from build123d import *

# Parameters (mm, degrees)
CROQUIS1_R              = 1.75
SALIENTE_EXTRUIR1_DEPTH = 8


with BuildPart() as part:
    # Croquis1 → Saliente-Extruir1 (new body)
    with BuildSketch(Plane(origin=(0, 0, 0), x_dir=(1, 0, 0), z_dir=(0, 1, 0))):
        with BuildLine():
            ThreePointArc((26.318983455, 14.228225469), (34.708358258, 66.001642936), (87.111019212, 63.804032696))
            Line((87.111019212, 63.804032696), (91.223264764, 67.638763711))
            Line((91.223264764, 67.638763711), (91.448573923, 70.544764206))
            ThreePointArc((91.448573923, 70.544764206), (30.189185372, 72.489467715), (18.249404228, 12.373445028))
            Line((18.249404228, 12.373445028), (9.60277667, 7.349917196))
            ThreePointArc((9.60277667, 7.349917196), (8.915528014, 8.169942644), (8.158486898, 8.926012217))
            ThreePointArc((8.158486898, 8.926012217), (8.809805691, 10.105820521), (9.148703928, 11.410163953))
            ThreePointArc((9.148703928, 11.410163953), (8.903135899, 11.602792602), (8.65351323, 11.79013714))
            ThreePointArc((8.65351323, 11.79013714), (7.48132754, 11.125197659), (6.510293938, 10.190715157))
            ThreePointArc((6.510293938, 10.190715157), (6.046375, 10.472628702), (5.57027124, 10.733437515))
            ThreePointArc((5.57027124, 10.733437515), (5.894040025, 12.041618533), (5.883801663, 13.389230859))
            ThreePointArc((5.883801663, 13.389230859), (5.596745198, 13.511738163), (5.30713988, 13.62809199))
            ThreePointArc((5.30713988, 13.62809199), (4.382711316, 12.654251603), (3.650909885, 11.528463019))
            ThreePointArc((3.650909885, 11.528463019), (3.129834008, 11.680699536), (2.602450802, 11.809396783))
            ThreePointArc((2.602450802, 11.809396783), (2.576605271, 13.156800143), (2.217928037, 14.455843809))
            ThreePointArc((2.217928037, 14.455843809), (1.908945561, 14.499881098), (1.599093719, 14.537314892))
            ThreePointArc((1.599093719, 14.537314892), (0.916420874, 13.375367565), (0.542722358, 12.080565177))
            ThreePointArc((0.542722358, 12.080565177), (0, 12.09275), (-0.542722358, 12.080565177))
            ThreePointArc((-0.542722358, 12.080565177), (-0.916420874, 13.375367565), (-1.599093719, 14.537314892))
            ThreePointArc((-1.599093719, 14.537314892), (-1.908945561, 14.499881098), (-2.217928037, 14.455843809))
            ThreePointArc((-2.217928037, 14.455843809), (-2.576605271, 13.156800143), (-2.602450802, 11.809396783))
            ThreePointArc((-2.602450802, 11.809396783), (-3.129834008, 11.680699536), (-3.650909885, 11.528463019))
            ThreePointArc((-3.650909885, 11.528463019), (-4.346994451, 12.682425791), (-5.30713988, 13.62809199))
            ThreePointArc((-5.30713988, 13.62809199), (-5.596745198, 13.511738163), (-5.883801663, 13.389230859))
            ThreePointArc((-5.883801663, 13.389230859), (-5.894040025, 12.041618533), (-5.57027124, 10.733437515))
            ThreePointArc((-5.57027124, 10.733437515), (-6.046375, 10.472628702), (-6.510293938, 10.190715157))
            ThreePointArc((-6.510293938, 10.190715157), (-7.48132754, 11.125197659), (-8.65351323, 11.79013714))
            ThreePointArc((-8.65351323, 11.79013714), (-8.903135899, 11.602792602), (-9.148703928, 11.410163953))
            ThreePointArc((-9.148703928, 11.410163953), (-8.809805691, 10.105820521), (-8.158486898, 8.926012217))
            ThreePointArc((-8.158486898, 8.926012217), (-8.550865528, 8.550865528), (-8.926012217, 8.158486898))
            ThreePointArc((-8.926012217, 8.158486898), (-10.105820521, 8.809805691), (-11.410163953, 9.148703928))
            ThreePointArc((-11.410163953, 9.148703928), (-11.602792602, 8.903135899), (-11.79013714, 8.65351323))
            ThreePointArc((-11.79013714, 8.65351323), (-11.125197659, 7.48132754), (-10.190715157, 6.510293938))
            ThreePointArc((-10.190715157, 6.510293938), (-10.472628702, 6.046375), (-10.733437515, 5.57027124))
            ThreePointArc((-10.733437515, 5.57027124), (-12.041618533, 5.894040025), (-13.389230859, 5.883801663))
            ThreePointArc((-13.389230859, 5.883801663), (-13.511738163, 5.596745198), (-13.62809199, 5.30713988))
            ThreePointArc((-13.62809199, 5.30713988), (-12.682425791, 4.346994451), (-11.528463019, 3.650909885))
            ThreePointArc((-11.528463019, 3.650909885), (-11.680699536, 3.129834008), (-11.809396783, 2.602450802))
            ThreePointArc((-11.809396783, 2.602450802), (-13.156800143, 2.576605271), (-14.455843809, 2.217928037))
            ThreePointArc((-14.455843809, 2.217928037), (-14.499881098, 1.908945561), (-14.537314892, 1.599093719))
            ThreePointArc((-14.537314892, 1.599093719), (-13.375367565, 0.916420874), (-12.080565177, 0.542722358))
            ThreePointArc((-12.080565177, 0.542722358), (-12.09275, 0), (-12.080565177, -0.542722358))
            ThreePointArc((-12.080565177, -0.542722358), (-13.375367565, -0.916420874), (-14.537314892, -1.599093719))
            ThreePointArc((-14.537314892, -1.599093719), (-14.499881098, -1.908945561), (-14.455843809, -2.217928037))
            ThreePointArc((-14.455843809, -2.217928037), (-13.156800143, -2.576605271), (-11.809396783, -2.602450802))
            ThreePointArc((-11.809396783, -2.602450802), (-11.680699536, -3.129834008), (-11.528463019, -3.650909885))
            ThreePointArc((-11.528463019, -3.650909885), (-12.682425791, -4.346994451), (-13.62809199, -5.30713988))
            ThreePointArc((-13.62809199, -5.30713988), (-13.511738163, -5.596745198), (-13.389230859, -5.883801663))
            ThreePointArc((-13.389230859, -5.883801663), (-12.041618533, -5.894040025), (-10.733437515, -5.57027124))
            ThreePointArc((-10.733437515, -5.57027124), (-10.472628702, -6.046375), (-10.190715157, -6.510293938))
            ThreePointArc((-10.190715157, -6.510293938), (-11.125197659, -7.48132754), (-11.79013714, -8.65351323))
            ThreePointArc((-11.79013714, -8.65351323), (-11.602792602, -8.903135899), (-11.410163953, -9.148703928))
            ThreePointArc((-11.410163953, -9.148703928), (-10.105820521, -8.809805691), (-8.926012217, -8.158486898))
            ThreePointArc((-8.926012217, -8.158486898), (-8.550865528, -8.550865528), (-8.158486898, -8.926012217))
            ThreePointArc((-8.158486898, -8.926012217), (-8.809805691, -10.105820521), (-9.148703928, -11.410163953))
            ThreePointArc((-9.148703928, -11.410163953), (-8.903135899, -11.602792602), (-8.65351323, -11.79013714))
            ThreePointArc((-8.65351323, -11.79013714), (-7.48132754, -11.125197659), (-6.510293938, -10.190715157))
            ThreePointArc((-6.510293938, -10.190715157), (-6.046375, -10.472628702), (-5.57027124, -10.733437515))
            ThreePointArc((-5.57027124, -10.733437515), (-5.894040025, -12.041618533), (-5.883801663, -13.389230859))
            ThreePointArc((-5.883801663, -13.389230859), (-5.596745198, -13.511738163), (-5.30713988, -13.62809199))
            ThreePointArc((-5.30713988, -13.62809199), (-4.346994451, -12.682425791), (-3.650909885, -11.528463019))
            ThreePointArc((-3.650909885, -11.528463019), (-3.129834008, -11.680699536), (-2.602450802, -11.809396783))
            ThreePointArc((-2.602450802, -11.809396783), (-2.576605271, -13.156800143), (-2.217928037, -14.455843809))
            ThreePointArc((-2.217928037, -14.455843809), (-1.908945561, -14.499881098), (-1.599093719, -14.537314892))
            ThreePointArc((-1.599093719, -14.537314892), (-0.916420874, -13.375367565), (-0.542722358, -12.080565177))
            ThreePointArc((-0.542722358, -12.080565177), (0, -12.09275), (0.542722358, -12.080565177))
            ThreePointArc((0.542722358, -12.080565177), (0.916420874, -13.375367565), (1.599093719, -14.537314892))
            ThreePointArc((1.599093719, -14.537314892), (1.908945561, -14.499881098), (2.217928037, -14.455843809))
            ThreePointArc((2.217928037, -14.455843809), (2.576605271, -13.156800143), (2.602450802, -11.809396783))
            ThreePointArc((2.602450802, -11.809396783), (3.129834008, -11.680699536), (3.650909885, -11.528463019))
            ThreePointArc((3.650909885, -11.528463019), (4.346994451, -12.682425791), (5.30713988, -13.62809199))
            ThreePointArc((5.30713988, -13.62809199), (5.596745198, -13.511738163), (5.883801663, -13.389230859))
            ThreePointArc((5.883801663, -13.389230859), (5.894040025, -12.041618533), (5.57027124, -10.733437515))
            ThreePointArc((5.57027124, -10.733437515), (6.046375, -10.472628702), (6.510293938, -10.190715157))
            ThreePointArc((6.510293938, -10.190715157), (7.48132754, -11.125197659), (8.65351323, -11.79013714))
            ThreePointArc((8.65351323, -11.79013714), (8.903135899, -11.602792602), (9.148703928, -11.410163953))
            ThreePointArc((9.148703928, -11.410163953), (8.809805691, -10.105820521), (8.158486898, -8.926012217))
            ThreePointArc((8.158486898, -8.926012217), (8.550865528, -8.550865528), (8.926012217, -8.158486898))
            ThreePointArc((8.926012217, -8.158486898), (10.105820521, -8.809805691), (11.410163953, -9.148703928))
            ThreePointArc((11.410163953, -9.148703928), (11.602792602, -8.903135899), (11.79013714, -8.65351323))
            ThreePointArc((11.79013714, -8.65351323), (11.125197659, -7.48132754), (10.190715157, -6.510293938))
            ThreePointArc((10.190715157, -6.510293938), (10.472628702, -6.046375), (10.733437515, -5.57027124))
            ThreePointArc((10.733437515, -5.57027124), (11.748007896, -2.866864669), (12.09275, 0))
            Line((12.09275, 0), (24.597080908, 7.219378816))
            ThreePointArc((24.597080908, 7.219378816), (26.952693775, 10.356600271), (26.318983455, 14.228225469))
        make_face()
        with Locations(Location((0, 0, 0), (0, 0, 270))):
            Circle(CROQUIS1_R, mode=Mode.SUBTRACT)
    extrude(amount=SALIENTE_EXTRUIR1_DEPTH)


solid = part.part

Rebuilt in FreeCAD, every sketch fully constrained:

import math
import FreeCAD as App
import Part
import Sketcher

V = App.Vector
Q = App.Units.Quantity

doc = App.newDocument("Part")
params = doc.addObject("Spreadsheet::Sheet", "Params")
for row, (alias, value) in enumerate([
    ("sketch1_radius", "5 mm"),
    ("sketch1_diameter", "3.5 mm"),
    ("sketch1_radius2", "39.5 mm"),
    ("sketch1_radius3", "5.4 mm"),
    ("sketch1_length", "10 mm"),
    ("pad1_length", "8 mm"),
], start=1):
    params.set(f"A{row}", alias)
    params.set(f"B{row}", "=" + value)
    params.setAlias(f"B{row}", alias)

body = doc.addObject("PartDesign::Body", "Body")

sketch1 = body.newObject("Sketcher::SketchObject", "Sketch")
sketch1.AttachmentSupport = (doc.getObject("XZ_Plane"), [""])
sketch1.MapMode = "FlatFace"
sketch1.addGeometry([
    Part.ArcOfCircle(Part.Circle(V(59.7, -35.4, 0), V(0, 0, 1), 39.5), math.radians(148), math.radians(314)),
    Part.LineSegment(V(87.1, -63.8, 0), V(91.2, -67.6, 0)),
    Part.LineSegment(V(91.2, -67.6, 0), V(91.4, -70.5, 0)),
    Part.ArcOfCircle(Part.Circle(V(59.7, -35.4, 0), V(0, 0, 1), 47.4), math.radians(151), math.radians(312)),
    Part.LineSegment(V(18.2, -12.4, 0), V(9.6, -7.3, 0)),
    Part.ArcOfCircle(Part.Circle(V(0, 0, 0), V(0, 0, 1), 12.1), math.radians(-47.57), math.radians(-37.43)),
    Part.ArcOfCircle(Part.Circle(V(3.8, -12.1, 0), V(0, 0, 1), 5.4), math.radians(7), math.radians(36)),
    Part.ArcOfCircle(Part.Circle(V(0, 0, 0), V(0, 0, 1), 14.6), math.radians(-53.72), math.radians(-51.28)),
    Part.ArcOfCircle(Part.Circle(V(10.7, -6.8, 0), V(0, 0, 1), 5.4), math.radians(-141), math.radians(-112)),
    Part.ArcOfCircle(Part.Circle(V(0, 0, 0), V(0, 0, 1), 12.1), math.radians(-62.57), math.radians(-57.43)),
    Part.ArcOfCircle(Part.Circle(V(0.5, -12.7, 0), V(0, 0, 1), 5.4), math.radians(-8), math.radians(21)),
    Part.ArcOfCircle(Part.Circle(V(0, 0, 0), V(0, 0, 1), 14.6), math.radians(-68.72), math.radians(-66.28)),
    Part.ArcOfCircle(Part.Circle(V(10.2, -8.1, 0), V(0, 0, 1), 7.3), math.radians(-152), math.radians(-131)),
    Part.ArcOfCircle(Part.Circle(V(0, 0, 0), V(0, 0, 1), 12.1), math.radians(-77.57), math.radians(-72.43)),
    Part.ArcOfCircle(Part.Circle(V(-2.8, -12.4, 0), V(0, 0, 1), 5.4), math.radians(-23), math.radians(6)),
    Part.ArcOfCircle(Part.Circle(V(0, 0, 0), V(0, 0, 1), 14.6), math.radians(-83.72), math.radians(-81.28)),
    Part.ArcOfCircle(Part.Circle(V(5.9, -11.2, 0), V(0, 0, 1), 5.4), math.radians(-171), math.radians(-142)),
    Part.ArcOfCircle(Part.Circle(V(0, 0, 0), V(0, 0, 1), 12.1), math.radians(-92.57), math.radians(-87.43)),
    Part.ArcOfCircle(Part.Circle(V(-5.9, -11.2, 0), V(0, 0, 1), 5.4), math.radians(-38), math.radians(-9)),
    Part.ArcOfCircle(Part.Circle(V(0, 0, 0), V(0, 0, 1), 14.6), math.radians(-98.72), math.radians(-96.28)),
    Part.ArcOfCircle(Part.Circle(V(2.8, -12.4, 0), V(0, 0, 1), 5.4), math.radians(174), math.radians(203)),
    Part.ArcOfCircle(Part.Circle(V(0, 0, 0), V(0, 0, 1), 12.1), math.radians(-107.57), math.radians(-102.43)),
    Part.ArcOfCircle(Part.Circle(V(-8.6, -9.3, 0), V(0, 0, 1), 5.4), math.radians(-53), math.radians(-24)),
    Part.ArcOfCircle(Part.Circle(V(0, 0, 0), V(0, 0, 1), 14.6), math.radians(-113.72), math.radians(-111.28)),
    Part.ArcOfCircle(Part.Circle(V(-0.5, -12.7, 0), V(0, 0, 1), 5.4), math.radians(159), math.radians(188)),
    Part.ArcOfCircle(Part.Circle(V(0, 0, 0), V(0, 0, 1), 12.1), math.radians(-122.57), math.radians(-117.43)),
    Part.ArcOfCircle(Part.Circle(V(-10.7, -6.8, 0), V(0, 0, 1), 5.4), math.radians(-68), math.radians(-39)),
    Part.ArcOfCircle(Part.Circle(V(0, 0, 0), V(0, 0, 1), 14.6), math.radians(-128.72), math.radians(-126.28)),
    Part.ArcOfCircle(Part.Circle(V(-3.8, -12.1, 0), V(0, 0, 1), 5.4), math.radians(144), math.radians(173)),
    Part.ArcOfCircle(Part.Circle(V(0, 0, 0), V(0, 0, 1), 12.1), math.radians(-137.57), math.radians(-132.43)),
    Part.ArcOfCircle(Part.Circle(V(-12.1, -3.8, 0), V(0, 0, 1), 5.4), math.radians(-83), math.radians(-54)),
    Part.ArcOfCircle(Part.Circle(V(0, 0, 0), V(0, 0, 1), 14.6), math.radians(-143.72), math.radians(-141.28)),
    Part.ArcOfCircle(Part.Circle(V(-6.8, -10.7, 0), V(0, 0, 1), 5.4), math.radians(129), math.radians(158)),
    Part.ArcOfCircle(Part.Circle(V(0, 0, 0), V(0, 0, 1), 12.1), math.radians(-152.57), math.radians(-147.43)),
    Part.ArcOfCircle(Part.Circle(V(-12.7, -0.5, 0), V(0, 0, 1), 5.4), math.radians(-98), math.radians(-69)),
    Part.ArcOfCircle(Part.Circle(V(0, 0, 0), V(0, 0, 1), 14.6), math.radians(-158.72), math.radians(-156.28)),
    Part.ArcOfCircle(Part.Circle(V(-9.3, -8.6, 0), V(0, 0, 1), 5.4), math.radians(114), math.radians(143)),
    Part.ArcOfCircle(Part.Circle(V(0, 0, 0), V(0, 0, 1), 12.1), math.radians(-167.57), math.radians(-162.43)),
    Part.ArcOfCircle(Part.Circle(V(-12.4, 2.8, 0), V(0, 0, 1), 5.4), math.radians(-113), math.radians(-84)),
    Part.ArcOfCircle(Part.Circle(V(0, 0, 0), V(0, 0, 1), 14.6), math.radians(-173.72), math.radians(-171.28)),
    Part.ArcOfCircle(Part.Circle(V(-11.2, -5.9, 0), V(0, 0, 1), 5.4), math.radians(99), math.radians(128)),
    Part.ArcOfCircle(Part.Circle(V(0, 0, 0), V(0, 0, 1), 12.1), math.radians(177.43), math.radians(182.57)),
    Part.ArcOfCircle(Part.Circle(V(-11.2, 5.9, 0), V(0, 0, 1), 5.4), math.radians(-128), math.radians(-99)),
    Part.ArcOfCircle(Part.Circle(V(0, 0, 0), V(0, 0, 1), 14.6), math.radians(171.28), math.radians(173.72)),
    Part.ArcOfCircle(Part.Circle(V(-12.4, -2.8, 0), V(0, 0, 1), 5.4), math.radians(84), math.radians(113)),
    Part.ArcOfCircle(Part.Circle(V(0, 0, 0), V(0, 0, 1), 12.1), math.radians(162.43), math.radians(167.57)),
    Part.ArcOfCircle(Part.Circle(V(-9.3, 8.6, 0), V(0, 0, 1), 5.4), math.radians(-143), math.radians(-114)),
    Part.ArcOfCircle(Part.Circle(V(0, 0, 0), V(0, 0, 1), 14.6), math.radians(156.28), math.radians(158.72)),
    Part.ArcOfCircle(Part.Circle(V(-12.7, 0.5, 0), V(0, 0, 1), 5.4), math.radians(69), math.radians(98)),
    Part.ArcOfCircle(Part.Circle(V(0, 0, 0), V(0, 0, 1), 12.1), math.radians(147.43), math.radians(152.57)),
    Part.ArcOfCircle(Part.Circle(V(-6.8, 10.7, 0), V(0, 0, 1), 5.4), math.radians(-158), math.radians(-129)),
    Part.ArcOfCircle(Part.Circle(V(0, 0, 0), V(0, 0, 1), 14.6), math.radians(141.28), math.radians(143.72)),
    Part.ArcOfCircle(Part.Circle(V(-12.1, 3.8, 0), V(0, 0, 1), 5.4), math.radians(54), math.radians(83)),
    Part.ArcOfCircle(Part.Circle(V(0, 0, 0), V(0, 0, 1), 12.1), math.radians(132.43), math.radians(137.57)),
    Part.ArcOfCircle(Part.Circle(V(-3.8, 12.1, 0), V(0, 0, 1), 5.4), math.radians(-173), math.radians(-144)),
    Part.ArcOfCircle(Part.Circle(V(0, 0, 0), V(0, 0, 1), 14.6), math.radians(126.28), math.radians(128.72)),
    Part.ArcOfCircle(Part.Circle(V(-10.7, 6.8, 0), V(0, 0, 1), 5.4), math.radians(39), math.radians(68)),
    Part.ArcOfCircle(Part.Circle(V(0, 0, 0), V(0, 0, 1), 12.1), math.radians(117.43), math.radians(122.57)),
    Part.ArcOfCircle(Part.Circle(V(-0.5, 12.7, 0), V(0, 0, 1), 5.4), math.radians(172), math.radians(201)),
    Part.ArcOfCircle(Part.Circle(V(0, 0, 0), V(0, 0, 1), 14.6), math.radians(111.28), math.radians(113.72)),
    Part.ArcOfCircle(Part.Circle(V(-8.6, 9.3, 0), V(0, 0, 1), 5.4), math.radians(24), math.radians(53)),
    Part.ArcOfCircle(Part.Circle(V(0, 0, 0), V(0, 0, 1), 12.1), math.radians(102.43), math.radians(107.57)),
    Part.ArcOfCircle(Part.Circle(V(2.8, 12.4, 0), V(0, 0, 1), 5.4), math.radians(157), math.radians(186)),
    Part.ArcOfCircle(Part.Circle(V(0, 0, 0), V(0, 0, 1), 14.6), math.radians(96.28), math.radians(98.72)),
    Part.ArcOfCircle(Part.Circle(V(-5.9, 11.2, 0), V(0, 0, 1), 5.4), math.radians(9), math.radians(38)),
    Part.ArcOfCircle(Part.Circle(V(0, 0, 0), V(0, 0, 1), 12.1), math.radians(87.43), math.radians(92.57)),
    Part.ArcOfCircle(Part.Circle(V(5.9, 11.2, 0), V(0, 0, 1), 5.4), math.radians(142), math.radians(171)),
    Part.ArcOfCircle(Part.Circle(V(0, 0, 0), V(0, 0, 1), 14.6), math.radians(81.28), math.radians(83.72)),
    Part.ArcOfCircle(Part.Circle(V(-2.8, 12.4, 0), V(0, 0, 1), 5.4), math.radians(-6), math.radians(23)),
    Part.ArcOfCircle(Part.Circle(V(0, 0, 0), V(0, 0, 1), 12.1), math.radians(72.43), math.radians(77.57)),
    Part.ArcOfCircle(Part.Circle(V(8.6, 9.3, 0), V(0, 0, 1), 5.4), math.radians(127), math.radians(156)),
    Part.ArcOfCircle(Part.Circle(V(0, 0, 0), V(0, 0, 1), 14.6), math.radians(66.28), math.radians(68.72)),
    Part.ArcOfCircle(Part.Circle(V(0.5, 12.7, 0), V(0, 0, 1), 5.4), math.radians(-21), math.radians(8)),
    Part.ArcOfCircle(Part.Circle(V(0, 0, 0), V(0, 0, 1), 12.1), math.radians(57.43), math.radians(62.57)),
    Part.ArcOfCircle(Part.Circle(V(10.7, 6.8, 0), V(0, 0, 1), 5.4), math.radians(112), math.radians(141)),
    Part.ArcOfCircle(Part.Circle(V(0, 0, 0), V(0, 0, 1), 14.6), math.radians(51.28), math.radians(53.72)),
    Part.ArcOfCircle(Part.Circle(V(3.8, 12.1, 0), V(0, 0, 1), 5.4), math.radians(-36), math.radians(-7)),
    Part.ArcOfCircle(Part.Circle(V(0, 0, 0), V(0, 0, 1), 12.1), math.radians(42.43), math.radians(47.57)),
    Part.ArcOfCircle(Part.Circle(V(12.1, 3.8, 0), V(0, 0, 1), 5.4), math.radians(97), math.radians(126)),
    Part.ArcOfCircle(Part.Circle(V(0, 0, 0), V(0, 0, 1), 14.6), math.radians(36.28), math.radians(38.72)),
    Part.ArcOfCircle(Part.Circle(V(6.8, 10.7, 0), V(0, 0, 1), 5.4), math.radians(-51), math.radians(-22)),
    Part.ArcOfCircle(Part.Circle(V(0, 0, 0), V(0, 0, 1), 12.1), math.radians(27.43), math.radians(32.57)),
    Part.ArcOfCircle(Part.Circle(V(0, 0, 0), V(0, 0, 1), 12.1), math.radians(0), math.radians(27)),
    Part.LineSegment(V(12.1, 0, 0), V(24.6, -7.2, 0)),
    Part.ArcOfCircle(Part.Circle(V(22.1, -11.5, 0), V(0, 0, 1), 5), math.radians(-32), math.radians(60)),
    Part.Circle(V(0, 0, 0), V(0, 0, 1), 1.8),
], False)
sketch1.addConstraint([
    Sketcher.Constraint("Coincident", 0, 2, 1, 1),
    Sketcher.Constraint("Coincident", 1, 2, 2, 1),
    Sketcher.Constraint("Coincident", 2, 2, 3, 2),
    Sketcher.Constraint("Coincident", 3, 1, 4, 1),
    Sketcher.Constraint("Coincident", 4, 2, 5, 2),
    Sketcher.Constraint("Coincident", 5, 1, 6, 2),
    Sketcher.Constraint("Coincident", 6, 1, 7, 2),
    Sketcher.Constraint("Coincident", 7, 1, 8, 2),
    Sketcher.Constraint("Coincident", 8, 1, 9, 2),
    Sketcher.Constraint("Coincident", 9, 1, 10, 2),
    Sketcher.Constraint("Coincident", 10, 1, 11, 2),
    Sketcher.Constraint("Coincident", 11, 1, 12, 2),
    Sketcher.Constraint("Coincident", 12, 1, 13, 2),
    Sketcher.Constraint("Coincident", 13, 1, 14, 2),
    Sketcher.Constraint("Coincident", 14, 1, 15, 2),
    Sketcher.Constraint("Coincident", 15, 1, 16, 2),
    Sketcher.Constraint("Coincident", 16, 1, 17, 2),
    Sketcher.Constraint("Coincident", 17, 1, 18, 2),
    Sketcher.Constraint("Coincident", 18, 1, 19, 2),
    Sketcher.Constraint("Coincident", 19, 1, 20, 2),
    Sketcher.Constraint("Coincident", 20, 1, 21, 2),
    Sketcher.Constraint("Coincident", 21, 1, 22, 2),
    Sketcher.Constraint("Coincident", 22, 1, 23, 2),
    Sketcher.Constraint("Coincident", 23, 1, 24, 2),
    Sketcher.Constraint("Coincident", 24, 1, 25, 2),
    Sketcher.Constraint("Coincident", 25, 1, 26, 2),
    Sketcher.Constraint("Coincident", 26, 1, 27, 2),
    Sketcher.Constraint("Coincident", 27, 1, 28, 2),
    Sketcher.Constraint("Coincident", 28, 1, 29, 2),
    Sketcher.Constraint("Coincident", 29, 1, 30, 2),
    Sketcher.Constraint("Coincident", 30, 1, 31, 2),
    Sketcher.Constraint("Coincident", 31, 1, 32, 2),
    Sketcher.Constraint("Coincident", 32, 1, 33, 2),
    Sketcher.Constraint("Coincident", 33, 1, 34, 2),
    Sketcher.Constraint("Coincident", 34, 1, 35, 2),
    Sketcher.Constraint("Coincident", 35, 1, 36, 2),
    Sketcher.Constraint("Coincident", 36, 1, 37, 2),
    Sketcher.Constraint("Coincident", 37, 1, 38, 2),
    Sketcher.Constraint("Coincident", 38, 1, 39, 2),
    Sketcher.Constraint("Coincident", 39, 1, 40, 2),
    Sketcher.Constraint("Coincident", 40, 1, 41, 2),
    Sketcher.Constraint("Coincident", 41, 1, 42, 2),
    Sketcher.Constraint("Coincident", 42, 1, 43, 2),
    Sketcher.Constraint("Coincident", 43, 1, 44, 2),
    Sketcher.Constraint("Coincident", 44, 1, 45, 2),
    Sketcher.Constraint("Coincident", 45, 1, 46, 2),
    Sketcher.Constraint("Coincident", 46, 1, 47, 2),
    Sketcher.Constraint("Coincident", 47, 1, 48, 2),
    Sketcher.Constraint("Coincident", 48, 1, 49, 2),
    Sketcher.Constraint("Coincident", 49, 1, 50, 2),
    Sketcher.Constraint("Coincident", 50, 1, 51, 2),
    Sketcher.Constraint("Coincident", 51, 1, 52, 2),
    Sketcher.Constraint("Coincident", 52, 1, 53, 2),
    Sketcher.Constraint("Coincident", 53, 1, 54, 2),
    Sketcher.Constraint("Coincident", 54, 1, 55, 2),
    Sketcher.Constraint("Coincident", 55, 1, 56, 2),
    Sketcher.Constraint("Coincident", 56, 1, 57, 2),
    Sketcher.Constraint("Coincident", 57, 1, 58, 2),
    Sketcher.Constraint("Coincident", 58, 1, 59, 2),
    Sketcher.Constraint("Coincident", 59, 1, 60, 2),
    Sketcher.Constraint("Coincident", 60, 1, 61, 2),
    Sketcher.Constraint("Coincident", 61, 1, 62, 2),
    Sketcher.Constraint("Coincident", 62, 1, 63, 2),
    Sketcher.Constraint("Coincident", 63, 1, 64, 2),
    Sketcher.Constraint("Coincident", 64, 1, 65, 2),
    Sketcher.Constraint("Coincident", 65, 1, 66, 2),
    Sketcher.Constraint("Coincident", 66, 1, 67, 2),
    Sketcher.Constraint("Coincident", 67, 1, 68, 2),
    Sketcher.Constraint("Coincident", 68, 1, 69, 2),
    Sketcher.Constraint("Coincident", 69, 1, 70, 2),
    Sketcher.Constraint("Coincident", 70, 1, 71, 2),
    Sketcher.Constraint("Coincident", 71, 1, 72, 2),
    Sketcher.Constraint("Coincident", 72, 1, 73, 2),
    Sketcher.Constraint("Coincident", 73, 1, 74, 2),
    Sketcher.Constraint("Coincident", 74, 1, 75, 2),
    Sketcher.Constraint("Coincident", 75, 1, 76, 2),
    Sketcher.Constraint("Coincident", 76, 1, 77, 2),
    Sketcher.Constraint("Coincident", 77, 1, 78, 2),
    Sketcher.Constraint("Coincident", 78, 1, 79, 2),
    Sketcher.Constraint("Coincident", 79, 1, 80, 2),
    Sketcher.Constraint("Coincident", 80, 1, 81, 2),
    Sketcher.Constraint("Tangent", 81, 1, 82, 2),
    Sketcher.Constraint("Coincident", 82, 1, 83, 1),
    Sketcher.Constraint("Tangent", 83, 2, 84, 2),
    Sketcher.Constraint("Tangent", 84, 1, 0, 1),
    Sketcher.Constraint("Coincident", 5, 3, -1, 1),
    Sketcher.Constraint("Coincident", 7, 3, -1, 1),
    Sketcher.Constraint("Coincident", 9, 3, -1, 1),
    Sketcher.Constraint("Coincident", 11, 3, -1, 1),
    Sketcher.Constraint("Coincident", 13, 3, -1, 1),
    Sketcher.Constraint("Coincident", 15, 3, -1, 1),
    Sketcher.Constraint("Coincident", 17, 3, -1, 1),
    Sketcher.Constraint("Coincident", 19, 3, -1, 1),
    Sketcher.Constraint("Coincident", 21, 3, -1, 1),
    Sketcher.Constraint("Coincident", 23, 3, -1, 1),
    Sketcher.Constraint("Coincident", 25, 3, -1, 1),
    Sketcher.Constraint("Coincident", 27, 3, -1, 1),
    Sketcher.Constraint("Coincident", 29, 3, -1, 1),
    Sketcher.Constraint("Coincident", 31, 3, -1, 1),
    Sketcher.Constraint("Coincident", 33, 3, -1, 1),
    Sketcher.Constraint("Coincident", 35, 3, -1, 1),
    Sketcher.Constraint("Coincident", 37, 3, -1, 1),
    Sketcher.Constraint("Coincident", 39, 3, -1, 1),
    Sketcher.Constraint("Coincident", 41, 3, -1, 1),
    Sketcher.Constraint("Coincident", 43, 3, -1, 1),
    Sketcher.Constraint("Coincident", 45, 3, -1, 1),
    Sketcher.Constraint("Coincident", 47, 3, -1, 1),
    Sketcher.Constraint("Coincident", 49, 3, -1, 1),
    Sketcher.Constraint("Coincident", 51, 3, -1, 1),
    Sketcher.Constraint("Coincident", 53, 3, -1, 1),
    Sketcher.Constraint("Coincident", 55, 3, -1, 1),
    Sketcher.Constraint("Coincident", 57, 3, -1, 1),
    Sketcher.Constraint("Coincident", 59, 3, -1, 1),
    Sketcher.Constraint("Coincident", 61, 3, -1, 1),
    Sketcher.Constraint("Coincident", 63, 3, -1, 1),
    Sketcher.Constraint("Coincident", 65, 3, -1, 1),
    Sketcher.Constraint("Coincident", 67, 3, -1, 1),
    Sketcher.Constraint("Coincident", 69, 3, -1, 1),
    Sketcher.Constraint("Coincident", 71, 3, -1, 1),
    Sketcher.Constraint("Coincident", 73, 3, -1, 1),
    Sketcher.Constraint("Coincident", 75, 3, -1, 1),
    Sketcher.Constraint("Coincident", 77, 3, -1, 1),
    Sketcher.Constraint("Coincident", 79, 3, -1, 1),
    Sketcher.Constraint("Coincident", 81, 3, -1, 1),
    Sketcher.Constraint("Coincident", 85, 3, -1, 1),
    Sketcher.Constraint("Coincident", 3, 3, 0, 3),
    Sketcher.Constraint("Equal", 6, 8),
    Sketcher.Constraint("Equal", 5, 9),
    Sketcher.Constraint("Equal", 8, 10),
    Sketcher.Constraint("Equal", 7, 11),
    Sketcher.Constraint("Equal", 9, 13),
    Sketcher.Constraint("Equal", 10, 14),
    Sketcher.Constraint("Equal", 7, 15),
    Sketcher.Constraint("Equal", 14, 16),
    Sketcher.Constraint("Equal", 13, 17),
    Sketcher.Constraint("Equal", 16, 18),
    Sketcher.Constraint("Equal", 15, 19),
    Sketcher.Constraint("Equal", 18, 20),
    Sketcher.Constraint("Equal", 17, 21),
    Sketcher.Constraint("Equal", 20, 22),
    Sketcher.Constraint("Equal", 11, 23),
    Sketcher.Constraint("Equal", 22, 24),
    Sketcher.Constraint("Equal", 21, 25),
    Sketcher.Constraint("Equal", 24, 26),
    Sketcher.Constraint("Equal", 23, 27),
    Sketcher.Constraint("Equal", 26, 28),
    Sketcher.Constraint("Equal", 25, 29),
    Sketcher.Constraint("Equal", 28, 30),
    Sketcher.Constraint("Equal", 27, 31),
    Sketcher.Constraint("Equal", 30, 32),
    Sketcher.Constraint("Equal", 29, 33),
    Sketcher.Constraint("Equal", 32, 34),
    Sketcher.Constraint("Equal", 31, 35),
    Sketcher.Constraint("Equal", 34, 36),
    Sketcher.Constraint("Equal", 33, 37),
    Sketcher.Constraint("Equal", 36, 38),
    Sketcher.Constraint("Equal", 31, 39),
    Sketcher.Constraint("Equal", 38, 40),
    Sketcher.Constraint("Equal", 37, 41),
    Sketcher.Constraint("Equal", 40, 42),
    Sketcher.Constraint("Equal", 39, 43),
    Sketcher.Constraint("Equal", 42, 44),
    Sketcher.Constraint("Equal", 41, 45),
    Sketcher.Constraint("Equal", 44, 46),
    Sketcher.Constraint("Equal", 35, 47),
    Sketcher.Constraint("Equal", 46, 48),
    Sketcher.Constraint("Equal", 45, 49),
    Sketcher.Constraint("Equal", 48, 50),
    Sketcher.Constraint("Equal", 47, 51),
    Sketcher.Constraint("Equal", 50, 52),
    Sketcher.Constraint("Equal", 49, 53),
    Sketcher.Constraint("Equal", 52, 54),
    Sketcher.Constraint("Equal", 51, 55),
    Sketcher.Constraint("Equal", 54, 56),
    Sketcher.Constraint("Equal", 53, 57),
    Sketcher.Constraint("Equal", 56, 58),
    Sketcher.Constraint("Equal", 55, 59),
    Sketcher.Constraint("Equal", 58, 60),
    Sketcher.Constraint("Equal", 57, 61),
    Sketcher.Constraint("Equal", 60, 62),
    Sketcher.Constraint("Equal", 55, 63),
    Sketcher.Constraint("Equal", 62, 64),
    Sketcher.Constraint("Equal", 61, 65),
    Sketcher.Constraint("Equal", 64, 66),
    Sketcher.Constraint("Equal", 63, 67),
    Sketcher.Constraint("Equal", 66, 68),
    Sketcher.Constraint("Equal", 65, 69),
    Sketcher.Constraint("Equal", 68, 70),
    Sketcher.Constraint("Equal", 59, 71),
    Sketcher.Constraint("Equal", 70, 72),
    Sketcher.Constraint("Equal", 69, 73),
    Sketcher.Constraint("Equal", 72, 74),
    Sketcher.Constraint("Equal", 71, 75),
    Sketcher.Constraint("Equal", 74, 76),
    Sketcher.Constraint("Equal", 73, 77),
    Sketcher.Constraint("Equal", 76, 78),
    Sketcher.Constraint("Equal", 75, 79),
    Sketcher.Constraint("Equal", 78, 80),
    Sketcher.Constraint("Equal", 77, 81),
    Sketcher.Constraint("Equal", 81, 82),
    Sketcher.Constraint("Symmetric", 6, 3, 54, 3, -1, 1),
    Sketcher.Constraint("Symmetric", 8, 3, 56, 3, -1, 1),
    Sketcher.Constraint("Symmetric", 10, 3, 58, 3, -1, 1),
    Sketcher.Constraint("Symmetric", 14, 3, 62, 3, -1, 1),
    Sketcher.Constraint("Symmetric", 16, 3, 64, 3, -1, 1),
    Sketcher.Constraint("Symmetric", 18, 3, 66, 3, -1, 1),
    Sketcher.Constraint("Symmetric", 20, 3, 68, 3, -1, 1),
    Sketcher.Constraint("Symmetric", 22, 3, 70, 3, -1, 1),
    Sketcher.Constraint("Symmetric", 24, 3, 72, 3, -1, 1),
    Sketcher.Constraint("Symmetric", 26, 3, 74, 3, -1, 1),
    Sketcher.Constraint("Symmetric", 28, 3, 76, 3, -1, 1),
    Sketcher.Constraint("Symmetric", 30, 3, 78, 3, -1, 1),
    Sketcher.Constraint("Symmetric", 32, 3, 80, 3, -1, 1),
    Sketcher.Constraint("Symmetric", 16, 3, 18, 3, -2),
    Sketcher.Constraint("Symmetric", 14, 3, 20, 3, -2),
    Sketcher.Constraint("Symmetric", 10, 3, 24, 3, -2),
    Sketcher.Constraint("Symmetric", 8, 3, 26, 3, -2),
    Sketcher.Constraint("Symmetric", 6, 3, 28, 3, -2),
    Sketcher.Constraint("Symmetric", 60, 3, 70, 3, -2),
    Sketcher.Constraint("Symmetric", 52, 3, 78, 3, -2),
    Sketcher.Constraint("Symmetric", 50, 3, 80, 3, -2),
    Sketcher.Constraint("Symmetric", 40, 3, 42, 3, -1),
    Sketcher.Constraint("Symmetric", 38, 3, 44, 3, -1),
    Sketcher.Constraint("Symmetric", 36, 3, 46, 3, -1),
    Sketcher.Constraint("Symmetric", 34, 3, 48, 3, -1),
    Sketcher.Constraint("PointOnObject", 82, 1, -1),
    Sketcher.Constraint("Horizontal", 12, 1, 21, 1),
    Sketcher.Constraint("Horizontal", 11, 1, 22, 1),
    Sketcher.Constraint("Horizontal", 48, 1, 81, 1),
    Sketcher.Constraint("Radius", 84, Q("5 mm")),
    Sketcher.Constraint("Diameter", 85, Q("3.5 mm")),
    Sketcher.Constraint("Radius", 0, Q("39.5 mm")),
    Sketcher.Constraint("Radius", 6, Q("5.4 mm")),
    Sketcher.Constraint("Angle", 1, Q("-43 deg")),
    Sketcher.Constraint("Angle", 83, Q("-30 deg")),
    Sketcher.Constraint("Distance", 4, Q("10 mm")),
    Sketcher.Constraint("Radius", 7, Q("14.625 mm")),
    Sketcher.Constraint("Radius", 5, Q("12.09275 mm")),
    Sketcher.Constraint("Radius", 3, Q("47.387756 mm")),
    Sketcher.Constraint("Radius", 12, Q("7.348606 mm")),
    Sketcher.Constraint("DistanceX", -1, 1, 10, 1, Q("5.883802 mm")),
    Sketcher.Constraint("DistanceY", 34, 1, -1, 1, Q("5.883802 mm")),
    Sketcher.Constraint("Distance", 2, Q("2.914722 mm")),
    Sketcher.Constraint("DistanceY", 0, 3, -1, 1, Q("35.390111 mm")),
    Sketcher.Constraint("DistanceX", -1, 1, 8, 3, Q("10.710989 mm")),
    Sketcher.Constraint("DistanceX", -1, 1, 10, 3, Q("0.531281 mm")),
    Sketcher.Constraint("DistanceX", -1, 1, 12, 3, Q("10.152339 mm")),
    Sketcher.Constraint("DistanceX", 14, 3, -1, 1, Q("2.767281 mm")),
    Sketcher.Constraint("DistanceY", 16, 3, -1, 1, Q("11.242271 mm")),
    Sketcher.Constraint("DistanceX", 22, 3, -1, 1, Q("8.586708 mm")),
    Sketcher.Constraint("DistanceY", 32, 3, -1, 1, Q("10.710989 mm")),
    Sketcher.Constraint("DistanceX", 34, 3, -1, 1, Q("12.674721 mm")),
    Sketcher.Constraint("DistanceY", 36, 3, -1, 1, Q("8.586708 mm")),
    Sketcher.Constraint("DistanceY", -1, 1, 38, 3, Q("2.767281 mm")),
    Sketcher.Constraint("DistanceX", 40, 3, -1, 1, Q("11.242271 mm")),
    Sketcher.Constraint("DistanceX", -1, 1, 84, 3, Q("22.097081 mm")),
    Sketcher.Constraint("DistanceX", -1, 1, 0, 2, Q("87.111019 mm")),
    Sketcher.Constraint("DistanceX", -1, 1, 13, 1, Q("2.602451 mm")),
    Sketcher.Constraint("DistanceX", 35, 1, -1, 1, Q("13.628092 mm")),
    Sketcher.Constraint("DistanceY", 37, 1, -1, 1, Q("2.602451 mm")),
    Sketcher.Constraint("Distance", 1, Q("5.622786 mm")),
    Sketcher.Constraint("DistanceX", -1, 1, 6, 3, Q("3.793637 mm")),
    Sketcher.Constraint("DistanceY", 6, 3, -1, 1, Q("12.105334 mm")),
    Sketcher.Constraint("DistanceY", 8, 3, -1, 1, Q("6.797463 mm")),
    Sketcher.Constraint("DistanceX", -1, 1, 16, 3, Q("5.877257 mm")),
    Sketcher.Constraint("DistanceX", 30, 3, -1, 1, Q("12.105334 mm")),
    Sketcher.Constraint("DistanceY", 30, 3, -1, 1, Q("3.793637 mm")),
    Sketcher.Constraint("DistanceX", 32, 3, -1, 1, Q("6.797463 mm")),
    Sketcher.Constraint("DistanceY", 40, 3, -1, 1, Q("5.877257 mm")),
    Sketcher.Constraint("DistanceX", -1, 1, 3, 1, Q("18.249404 mm")),
])
sketch1.setExpression("Constraints[229]", "Params.sketch1_radius")
sketch1.setExpression("Constraints[230]", "Params.sketch1_diameter")
sketch1.setExpression("Constraints[231]", "Params.sketch1_radius2")
sketch1.setExpression("Constraints[232]", "Params.sketch1_radius3")
sketch1.setExpression("Constraints[235]", "Params.sketch1_length")
pad1 = body.newObject("PartDesign::Pad", "Pad")
pad1.Profile = sketch1
pad1.setExpression("Length", "Params.pad1_length")
pad1.Reversed = True

doc.recompute()
